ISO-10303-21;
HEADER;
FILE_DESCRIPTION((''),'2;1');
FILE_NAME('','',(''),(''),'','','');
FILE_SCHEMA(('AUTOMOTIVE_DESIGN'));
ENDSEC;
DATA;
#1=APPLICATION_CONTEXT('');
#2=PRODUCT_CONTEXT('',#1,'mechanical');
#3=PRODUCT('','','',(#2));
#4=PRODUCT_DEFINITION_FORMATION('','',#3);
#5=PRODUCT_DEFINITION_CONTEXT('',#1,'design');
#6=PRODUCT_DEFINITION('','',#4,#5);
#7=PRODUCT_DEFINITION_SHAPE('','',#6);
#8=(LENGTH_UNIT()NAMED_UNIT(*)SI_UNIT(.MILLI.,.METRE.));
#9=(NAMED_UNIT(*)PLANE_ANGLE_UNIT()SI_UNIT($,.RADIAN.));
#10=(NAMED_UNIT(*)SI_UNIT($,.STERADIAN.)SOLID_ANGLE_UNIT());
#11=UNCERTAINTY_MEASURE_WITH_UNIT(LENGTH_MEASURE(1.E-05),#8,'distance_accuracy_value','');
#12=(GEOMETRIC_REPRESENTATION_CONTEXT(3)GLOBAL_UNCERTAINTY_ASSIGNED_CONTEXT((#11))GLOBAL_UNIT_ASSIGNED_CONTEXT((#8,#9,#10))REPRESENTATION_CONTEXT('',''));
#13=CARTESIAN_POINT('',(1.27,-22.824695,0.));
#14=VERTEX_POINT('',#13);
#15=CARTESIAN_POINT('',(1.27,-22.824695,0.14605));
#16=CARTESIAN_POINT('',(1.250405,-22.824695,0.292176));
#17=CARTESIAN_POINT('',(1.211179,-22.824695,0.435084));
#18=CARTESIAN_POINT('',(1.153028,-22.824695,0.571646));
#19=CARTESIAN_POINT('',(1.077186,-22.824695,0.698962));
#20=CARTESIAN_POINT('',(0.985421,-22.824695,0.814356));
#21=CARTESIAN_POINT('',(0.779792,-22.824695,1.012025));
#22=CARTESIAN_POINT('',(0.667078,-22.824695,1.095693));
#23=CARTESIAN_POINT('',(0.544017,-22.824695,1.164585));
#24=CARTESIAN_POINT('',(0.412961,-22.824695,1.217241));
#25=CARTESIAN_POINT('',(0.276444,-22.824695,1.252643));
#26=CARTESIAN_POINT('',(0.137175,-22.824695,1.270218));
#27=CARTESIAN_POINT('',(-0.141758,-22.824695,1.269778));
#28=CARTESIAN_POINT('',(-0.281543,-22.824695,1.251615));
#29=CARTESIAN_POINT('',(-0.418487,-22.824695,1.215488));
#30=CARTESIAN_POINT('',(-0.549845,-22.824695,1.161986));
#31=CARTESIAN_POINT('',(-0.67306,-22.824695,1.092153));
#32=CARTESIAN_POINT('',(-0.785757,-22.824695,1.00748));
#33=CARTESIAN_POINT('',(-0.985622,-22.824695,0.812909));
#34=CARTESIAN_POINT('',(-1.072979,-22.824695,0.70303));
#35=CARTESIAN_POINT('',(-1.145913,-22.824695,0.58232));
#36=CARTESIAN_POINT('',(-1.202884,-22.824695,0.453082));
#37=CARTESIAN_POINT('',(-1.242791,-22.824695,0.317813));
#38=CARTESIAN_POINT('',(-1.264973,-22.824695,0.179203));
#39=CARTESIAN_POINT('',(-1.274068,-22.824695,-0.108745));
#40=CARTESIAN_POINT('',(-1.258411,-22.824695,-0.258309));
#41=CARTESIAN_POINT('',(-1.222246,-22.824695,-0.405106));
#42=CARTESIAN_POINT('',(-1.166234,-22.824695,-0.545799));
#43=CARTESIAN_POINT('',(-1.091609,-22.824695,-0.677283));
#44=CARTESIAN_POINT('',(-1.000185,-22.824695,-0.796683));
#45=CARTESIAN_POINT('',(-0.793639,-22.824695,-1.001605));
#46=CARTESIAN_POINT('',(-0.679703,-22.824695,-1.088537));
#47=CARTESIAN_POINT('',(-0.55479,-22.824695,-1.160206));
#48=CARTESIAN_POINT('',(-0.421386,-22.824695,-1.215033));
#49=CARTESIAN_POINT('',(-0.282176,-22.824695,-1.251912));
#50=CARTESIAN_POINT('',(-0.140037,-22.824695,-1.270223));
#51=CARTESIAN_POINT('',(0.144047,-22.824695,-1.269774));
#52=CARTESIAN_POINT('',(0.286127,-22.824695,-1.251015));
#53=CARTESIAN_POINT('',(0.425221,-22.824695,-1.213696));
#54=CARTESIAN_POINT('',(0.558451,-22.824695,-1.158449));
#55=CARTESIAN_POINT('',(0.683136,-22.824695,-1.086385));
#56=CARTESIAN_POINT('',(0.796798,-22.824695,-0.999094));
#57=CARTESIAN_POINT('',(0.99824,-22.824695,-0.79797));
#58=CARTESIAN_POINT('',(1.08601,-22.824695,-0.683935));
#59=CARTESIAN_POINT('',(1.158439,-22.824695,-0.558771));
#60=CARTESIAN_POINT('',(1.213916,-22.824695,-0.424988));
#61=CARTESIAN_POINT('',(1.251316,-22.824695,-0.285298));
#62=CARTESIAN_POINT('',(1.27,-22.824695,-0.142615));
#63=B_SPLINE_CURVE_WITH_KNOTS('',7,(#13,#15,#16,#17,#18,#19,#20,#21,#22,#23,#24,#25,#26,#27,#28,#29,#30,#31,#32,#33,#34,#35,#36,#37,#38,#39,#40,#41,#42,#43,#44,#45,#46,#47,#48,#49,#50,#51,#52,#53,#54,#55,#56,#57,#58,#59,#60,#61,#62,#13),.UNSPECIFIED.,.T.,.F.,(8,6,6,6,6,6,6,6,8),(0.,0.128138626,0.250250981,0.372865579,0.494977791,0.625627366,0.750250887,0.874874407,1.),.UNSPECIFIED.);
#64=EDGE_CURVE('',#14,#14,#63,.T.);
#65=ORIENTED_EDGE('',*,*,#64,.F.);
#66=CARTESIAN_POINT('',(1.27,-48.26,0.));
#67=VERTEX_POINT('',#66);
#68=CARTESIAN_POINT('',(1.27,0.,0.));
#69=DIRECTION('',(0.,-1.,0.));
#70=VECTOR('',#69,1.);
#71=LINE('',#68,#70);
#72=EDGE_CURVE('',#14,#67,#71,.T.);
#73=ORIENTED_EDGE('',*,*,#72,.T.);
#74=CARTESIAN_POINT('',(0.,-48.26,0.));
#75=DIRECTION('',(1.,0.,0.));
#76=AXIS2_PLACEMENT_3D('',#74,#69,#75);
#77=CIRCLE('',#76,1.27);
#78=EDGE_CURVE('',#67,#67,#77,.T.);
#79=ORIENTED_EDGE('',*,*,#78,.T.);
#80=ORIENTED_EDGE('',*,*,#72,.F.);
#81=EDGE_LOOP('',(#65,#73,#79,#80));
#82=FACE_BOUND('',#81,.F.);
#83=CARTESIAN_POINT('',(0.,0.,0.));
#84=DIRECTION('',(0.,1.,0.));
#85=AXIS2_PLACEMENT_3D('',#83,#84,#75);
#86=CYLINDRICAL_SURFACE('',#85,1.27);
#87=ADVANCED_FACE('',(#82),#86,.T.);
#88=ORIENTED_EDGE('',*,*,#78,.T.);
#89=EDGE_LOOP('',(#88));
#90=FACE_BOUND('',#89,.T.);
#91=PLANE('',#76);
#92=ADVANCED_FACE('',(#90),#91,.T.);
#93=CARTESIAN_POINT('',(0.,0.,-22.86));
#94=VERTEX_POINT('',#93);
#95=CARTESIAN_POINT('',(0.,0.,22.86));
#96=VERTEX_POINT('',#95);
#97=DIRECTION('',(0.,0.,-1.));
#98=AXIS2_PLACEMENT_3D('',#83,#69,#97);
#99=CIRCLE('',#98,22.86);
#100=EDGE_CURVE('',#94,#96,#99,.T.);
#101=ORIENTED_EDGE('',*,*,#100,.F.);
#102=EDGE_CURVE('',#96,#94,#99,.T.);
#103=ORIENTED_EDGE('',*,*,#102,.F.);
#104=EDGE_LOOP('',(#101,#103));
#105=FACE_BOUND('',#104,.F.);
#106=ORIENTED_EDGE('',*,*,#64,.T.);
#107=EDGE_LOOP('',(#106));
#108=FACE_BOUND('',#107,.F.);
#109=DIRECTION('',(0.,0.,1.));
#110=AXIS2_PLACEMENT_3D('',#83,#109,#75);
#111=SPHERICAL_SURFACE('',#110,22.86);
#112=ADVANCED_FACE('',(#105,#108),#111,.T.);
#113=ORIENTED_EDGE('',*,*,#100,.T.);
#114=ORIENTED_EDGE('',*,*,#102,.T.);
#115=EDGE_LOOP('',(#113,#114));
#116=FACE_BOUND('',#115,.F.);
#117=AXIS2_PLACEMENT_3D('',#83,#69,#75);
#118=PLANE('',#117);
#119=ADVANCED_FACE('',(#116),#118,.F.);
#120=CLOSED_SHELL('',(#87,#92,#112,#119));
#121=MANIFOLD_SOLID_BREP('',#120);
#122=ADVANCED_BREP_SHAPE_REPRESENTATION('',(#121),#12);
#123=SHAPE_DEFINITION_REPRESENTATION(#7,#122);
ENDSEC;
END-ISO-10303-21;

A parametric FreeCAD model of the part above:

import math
import FreeCAD as App
import Part
import Sketcher
Q = App.Units.Quantity

doc = App.newDocument("Part")
body = doc.addObject("PartDesign::Body", "Body")

# Sketch on XZ plane
sketch1 = doc.addObject("Sketcher::SketchObject", "Sketch")
body.addObject(sketch1)
sketch1.AttachmentSupport = (doc.XZ_Plane, [""])
sketch1.MapMode = "FlatFace"
sketch1.addGeometry([
    Part.LineSegment(App.Vector(0, 23, 0), App.Vector(0, -23, 0)),
    Part.ArcOfCircle(Part.Circle(App.Vector(0, 0, 0), App.Vector(0, 0, 1), 23), math.radians(-90), math.radians(90)),
], False)
sketch1.addConstraint([
    Sketcher.Constraint("Coincident", 0, 1, 1, 2),
    Sketcher.Constraint("Coincident", 1, 1, 0, 2),
    Sketcher.Constraint("Vertical", 0),
    Sketcher.Constraint("Coincident", 1, 3, -1, 1),
    Sketcher.Constraint("PointOnObject", 0, 1, -2),
    Sketcher.Constraint("Radius", 1, Q("0.9 in")),
])
revolution = doc.addObject("PartDesign::Revolution", "Revolution")
body.addObject(revolution)
revolution.Profile = sketch1
revolution.ReferenceAxis = (sketch1, ["V_Axis"])
revolution.Angle = 360

# Sketch on XZ plane
sketch2 = doc.addObject("Sketcher::SketchObject", "Sketch001")
body.addObject(sketch2)
sketch2.AttachmentSupport = (doc.XZ_Plane, [""])
sketch2.MapMode = "FlatFace"
sketch2.addGeometry(Part.Circle(App.Vector(0, 0, 0), App.Vector(0, 0, 1), 1.3), False)
sketch2.addConstraint([
    Sketcher.Constraint("Coincident", 0, 3, -1, 1),
    Sketcher.Constraint("Diameter", 0, Q("0.1 in")),
])
pad1 = doc.addObject("PartDesign::Pad", "Pad")
body.addObject(pad1)
pad1.Profile = sketch2
pad1.Type = "TwoLengths"
pad1.Length = Q("1.9 in")
pad1.Length2 = Q("1.9 in")

# Sketch on XZ plane
sketch3 = doc.addObject("Sketcher::SketchObject", "Sketch002")
body.addObject(sketch3)
sketch3.AttachmentSupport = (doc.XZ_Plane, [""])
sketch3.MapMode = "FlatFace"
sketch3.addGeometry(Part.Circle(App.Vector(0, 0, 0), App.Vector(0, 0, 1), 26), False)
sketch3.addConstraint([
    Sketcher.Constraint("Coincident", 0, 3, -1, 1),
    Sketcher.Constraint("Diameter", 0, 52.363848),
])
pocket1 = doc.addObject("PartDesign::Pocket", "Pocket")
body.addObject(pocket1)
pocket1.Profile = sketch3
pocket1.Type = "ThroughAll"

doc.recompute()
